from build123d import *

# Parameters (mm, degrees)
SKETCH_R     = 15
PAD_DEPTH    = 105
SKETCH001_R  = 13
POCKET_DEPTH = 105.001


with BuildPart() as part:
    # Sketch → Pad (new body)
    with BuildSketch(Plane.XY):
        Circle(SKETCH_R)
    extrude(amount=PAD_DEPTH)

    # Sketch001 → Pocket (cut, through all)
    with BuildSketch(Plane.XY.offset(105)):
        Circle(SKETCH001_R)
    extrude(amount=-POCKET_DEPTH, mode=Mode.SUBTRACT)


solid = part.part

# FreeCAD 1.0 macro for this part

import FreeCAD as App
import Part
import Sketcher
from FreeCAD import Vector
Q = App.Units.Quantity

doc = App.newDocument("Part")
body = doc.addObject("PartDesign::Body", "Body")

# Sketch on XY plane
sketch1 = body.newObject("Sketcher::SketchObject", "Sketch")
sketch1.AttachmentSupport = (doc.getObject("XY_Plane"), [""])
sketch1.MapMode = "FlatFace"
sketch1.addGeometry(Part.Circle(Vector(0, 0, 0), Vector(0, 0, 1), 15), False)
sketch1.addConstraint(Sketcher.Constraint("Coincident", 0, 3, -1, 1))
sketch1.addConstraint(Sketcher.Constraint("Diameter", 0, Q("30 mm")))
pad1 = body.newObject("PartDesign::Pad", "Pad")
pad1.Profile = sketch1
pad1.Length = 105

# Sketch on XY plane
sketch2 = body.newObject("Sketcher::SketchObject", "Sketch001")
sketch2.AttachmentSupport = (doc.getObject("XY_Plane"), [""])
sketch2.MapMode = "FlatFace"
sketch2.AttachmentOffset = App.Placement(Vector(0, 0, 105), App.Rotation())
sketch2.addGeometry(Part.Circle(Vector(0, 0, 0), Vector(0, 0, 1), 13), False)
sketch2.addConstraint(Sketcher.Constraint("Coincident", 0, 3, -1, 1))
sketch2.addConstraint(Sketcher.Constraint("Diameter", 0, Q("26 mm")))
pocket1 = body.newObject("PartDesign::Pocket", "Pocket")
pocket1.Profile = sketch2
pocket1.Type = "ThroughAll"

doc.recompute()
